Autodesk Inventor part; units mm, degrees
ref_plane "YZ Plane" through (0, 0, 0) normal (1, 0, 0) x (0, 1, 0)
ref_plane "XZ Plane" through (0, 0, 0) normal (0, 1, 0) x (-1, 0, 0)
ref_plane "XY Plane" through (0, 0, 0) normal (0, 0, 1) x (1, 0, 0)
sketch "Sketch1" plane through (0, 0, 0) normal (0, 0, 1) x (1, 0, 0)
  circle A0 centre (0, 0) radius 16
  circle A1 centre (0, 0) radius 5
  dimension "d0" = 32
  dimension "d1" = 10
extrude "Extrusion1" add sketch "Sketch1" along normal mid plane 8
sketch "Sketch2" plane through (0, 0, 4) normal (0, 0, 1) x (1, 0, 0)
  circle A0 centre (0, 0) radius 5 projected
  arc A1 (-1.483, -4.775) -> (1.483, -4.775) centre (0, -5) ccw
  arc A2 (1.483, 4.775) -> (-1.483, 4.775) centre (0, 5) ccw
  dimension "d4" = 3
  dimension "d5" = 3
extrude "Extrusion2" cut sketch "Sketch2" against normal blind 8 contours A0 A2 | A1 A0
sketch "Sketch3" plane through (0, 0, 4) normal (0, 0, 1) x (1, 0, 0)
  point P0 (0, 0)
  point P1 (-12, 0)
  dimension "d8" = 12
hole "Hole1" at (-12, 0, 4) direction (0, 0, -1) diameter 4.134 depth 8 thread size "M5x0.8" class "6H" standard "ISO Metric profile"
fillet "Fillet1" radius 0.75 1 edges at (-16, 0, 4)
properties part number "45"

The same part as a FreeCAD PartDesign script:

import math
import FreeCAD as App
import Part
import Sketcher
from FreeCAD import Vector
Q = App.Units.Quantity


def edges_at(feature, points):
    """Names of the edges that pass closest to the given points."""
    edges = feature.Shape.Edges
    near = lambda p: min(range(len(edges)), key=lambda i: edges[i].distToShape(Part.Vertex(*p))[0])
    return sorted({f"Edge{near(p) + 1}" for p in points})

doc = App.newDocument("Part")
body = doc.addObject("PartDesign::Body", "Body")

sketch1 = body.newObject("Sketcher::SketchObject", "Sketch")
sketch1.AttachmentSupport = (doc.getObject("XY_Plane"), [""])
sketch1.MapMode = "FlatFace"
sketch1.addGeometry([
    Part.Circle(Vector(0, 0, 0), Vector(0, 0, 1), 16),
    Part.Circle(Vector(0, 0, 0), Vector(0, 0, 1), 5),
], False)
sketch1.addConstraint([
    Sketcher.Constraint("Coincident", 0, 3, -1, 1),
    Sketcher.Constraint("Coincident", 1, 3, -1, 1),
    Sketcher.Constraint("Diameter", 0, Q("32 mm")),
    Sketcher.Constraint("Diameter", 1, Q("10 mm")),
])
pad1 = body.newObject("PartDesign::Pad", "Pad")
pad1.Profile = sketch1
pad1.Length = 8
pad1.Midplane = True

sketch2 = body.newObject("Sketcher::SketchObject", "Sketch001")
sketch2.AttachmentSupport = (doc.getObject("XY_Plane"), [""])
sketch2.MapMode = "FlatFace"
sketch2.AttachmentOffset = App.Placement(Vector(0, 0, 4), App.Rotation())
sketch2.addGeometry([
    Part.ArcOfCircle(Part.Circle(Vector(0, 0, 0), Vector(0, 0, 1), 5), math.radians(72.746464), math.radians(107.253536)),
    Part.ArcOfCircle(Part.Circle(Vector(0, 5, 0), Vector(0, 0, 1), 1.499971), math.radians(-8.627093), math.radians(188.627093)),
    Part.ArcOfCircle(Part.Circle(Vector(0, -5, 0), Vector(0, 0, 1), 1.499971), math.radians(171.372907), math.radians(368.627093)),
    Part.ArcOfCircle(Part.Circle(Vector(0, 0, 0), Vector(0, 0, 1), 5), math.radians(-107.253536), math.radians(-72.746464)),
], False)
sketch2.addConstraint([
    Sketcher.Constraint("Coincident", 0, 1, 1, 1),
    Sketcher.Constraint("Coincident", 1, 2, 0, 2),
    Sketcher.Constraint("Coincident", 2, 1, 3, 1),
    Sketcher.Constraint("Coincident", 3, 2, 2, 2),
    Sketcher.Constraint("Coincident", 0, 3, -1, 1),
    Sketcher.Constraint("Coincident", 3, 3, -1, 1),
    Sketcher.Constraint("Equal", 1, 2),
    Sketcher.Constraint("Equal", 0, 3),
    Sketcher.Constraint("Symmetric", 1, 3, 2, 3, -1, 1),
    Sketcher.Constraint("PointOnObject", 1, 3, -2),
    Sketcher.Constraint("Radius", 1, Q("1.5 mm")),
    Sketcher.Constraint("Radius", 0, Q("5 mm")),
    Sketcher.Constraint("DistanceY", -1, 1, 1, 3, Q("5 mm")),
])
pocket1 = body.newObject("PartDesign::Pocket", "Pocket")
pocket1.Profile = sketch2
pocket1.Length = 8

sketch3 = body.newObject("Sketcher::SketchObject", "Sketch002")
sketch3.AttachmentSupport = (doc.getObject("XY_Plane"), [""])
sketch3.MapMode = "FlatFace"
sketch3.AttachmentOffset = App.Placement(Vector(0, 0, 4), App.Rotation())
sketch3.addGeometry(Part.Circle(Vector(-12, 0, 0), Vector(0, 0, 1), 2.067), False)
sketch3.addConstraint([
    Sketcher.Constraint("PointOnObject", 0, 3, -1),
    Sketcher.Constraint("Diameter", 0, Q("4.134 mm")),
    Sketcher.Constraint("DistanceX", 0, 3, -1, 1, Q("12 mm")),
])
doc.recompute()
hole = body.newObject("PartDesign::Hole", "Hole")
hole.Profile = sketch3
hole.ThreadType = "None"
hole.Diameter = 4.134
hole.DepthType = "Dimension"
hole.Depth = 8
hole.DrillPoint = "Flat"
doc.recompute()

fillet = body.newObject("PartDesign::Fillet", "Fillet")
fillet.Base = (hole, edges_at(hole, [(-16, 0, 4)]))
fillet.Radius = 0.75

doc.recompute()
